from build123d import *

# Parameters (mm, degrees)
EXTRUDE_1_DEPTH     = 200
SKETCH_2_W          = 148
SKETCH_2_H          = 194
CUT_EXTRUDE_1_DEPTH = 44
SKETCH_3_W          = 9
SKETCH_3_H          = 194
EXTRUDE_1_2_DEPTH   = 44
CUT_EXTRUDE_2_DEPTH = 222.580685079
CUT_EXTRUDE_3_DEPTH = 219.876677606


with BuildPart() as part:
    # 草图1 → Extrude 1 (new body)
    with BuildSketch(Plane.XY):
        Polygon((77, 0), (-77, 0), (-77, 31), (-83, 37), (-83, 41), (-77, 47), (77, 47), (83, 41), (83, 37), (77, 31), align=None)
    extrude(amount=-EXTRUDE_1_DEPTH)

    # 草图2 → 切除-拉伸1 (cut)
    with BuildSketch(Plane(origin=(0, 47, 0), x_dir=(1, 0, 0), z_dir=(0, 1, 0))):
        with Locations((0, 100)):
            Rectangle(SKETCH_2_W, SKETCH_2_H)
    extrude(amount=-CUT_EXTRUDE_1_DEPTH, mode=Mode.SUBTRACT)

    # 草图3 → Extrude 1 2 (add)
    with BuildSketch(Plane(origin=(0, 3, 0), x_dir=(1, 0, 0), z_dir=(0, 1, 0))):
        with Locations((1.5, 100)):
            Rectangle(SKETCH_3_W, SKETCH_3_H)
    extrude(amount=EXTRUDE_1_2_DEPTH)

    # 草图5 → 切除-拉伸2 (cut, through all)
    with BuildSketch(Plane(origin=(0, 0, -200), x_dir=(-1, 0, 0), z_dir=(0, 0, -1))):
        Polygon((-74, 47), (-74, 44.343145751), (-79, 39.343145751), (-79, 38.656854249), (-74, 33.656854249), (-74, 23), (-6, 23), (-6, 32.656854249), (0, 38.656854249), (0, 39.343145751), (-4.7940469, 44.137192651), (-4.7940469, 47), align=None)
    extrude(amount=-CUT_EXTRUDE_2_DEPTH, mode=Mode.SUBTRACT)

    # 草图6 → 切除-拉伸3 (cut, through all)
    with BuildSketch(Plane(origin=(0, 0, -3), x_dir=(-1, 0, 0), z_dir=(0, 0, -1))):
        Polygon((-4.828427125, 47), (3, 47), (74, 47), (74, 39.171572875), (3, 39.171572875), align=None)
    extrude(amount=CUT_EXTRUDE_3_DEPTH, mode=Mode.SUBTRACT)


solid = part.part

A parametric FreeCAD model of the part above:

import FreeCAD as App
import Part
import Sketcher
Q = App.Units.Quantity

doc = App.newDocument("Part")
body = doc.addObject("PartDesign::Body", "Body")

# Sketch on XY plane
sketch1 = body.newObject("Sketcher::SketchObject", "Sketch")
sketch1.AttachmentSupport = (doc.getObject("XY_Plane"), [""])
sketch1.MapMode = "FlatFace"
sketch1.addGeometry(Part.LineSegment(App.Vector(-77, 0, 0), App.Vector(77, 0, 0)), False)
sketch1.addGeometry(Part.LineSegment(App.Vector(77, 0, 0), App.Vector(77, 31, 0)), False)
sketch1.addGeometry(Part.LineSegment(App.Vector(77, 31, 0), App.Vector(83, 37, 0)), False)
sketch1.addGeometry(Part.LineSegment(App.Vector(83, 37, 0), App.Vector(83, 41, 0)), False)
sketch1.addGeometry(Part.LineSegment(App.Vector(83, 41, 0), App.Vector(77, 47, 0)), False)
sketch1.addGeometry(Part.LineSegment(App.Vector(77, 47, 0), App.Vector(-77, 47, 0)), False)
sketch1.addGeometry(Part.LineSegment(App.Vector(-77, 47, 0), App.Vector(-83, 41, 0)), False)
sketch1.addGeometry(Part.LineSegment(App.Vector(-83, 41, 0), App.Vector(-83, 37, 0)), False)
sketch1.addGeometry(Part.LineSegment(App.Vector(-83, 37, 0), App.Vector(-77, 31, 0)), False)
sketch1.addGeometry(Part.LineSegment(App.Vector(-77, 31, 0), App.Vector(-77, 0, 0)), False)
sketch1.addConstraint(Sketcher.Constraint("Coincident", 0, 2, 1, 1))
sketch1.addConstraint(Sketcher.Constraint("Coincident", 1, 2, 2, 1))
sketch1.addConstraint(Sketcher.Constraint("Coincident", 2, 2, 3, 1))
sketch1.addConstraint(Sketcher.Constraint("Coincident", 3, 2, 4, 1))
sketch1.addConstraint(Sketcher.Constraint("Coincident", 4, 2, 5, 1))
sketch1.addConstraint(Sketcher.Constraint("Coincident", 5, 2, 6, 1))
sketch1.addConstraint(Sketcher.Constraint("Coincident", 6, 2, 7, 1))
sketch1.addConstraint(Sketcher.Constraint("Coincident", 7, 2, 8, 1))
sketch1.addConstraint(Sketcher.Constraint("Coincident", 8, 2, 9, 1))
sketch1.addConstraint(Sketcher.Constraint("Coincident", 9, 2, 0, 1))
sketch1.addConstraint(Sketcher.Constraint("Horizontal", 0))
sketch1.addConstraint(Sketcher.Constraint("Vertical", 1))
sketch1.addConstraint(Sketcher.Constraint("Vertical", 3))
sketch1.addConstraint(Sketcher.Constraint("Horizontal", 5))
sketch1.addConstraint(Sketcher.Constraint("Vertical", 7))
sketch1.addConstraint(Sketcher.Constraint("Vertical", 9))
sketch1.addConstraint(Sketcher.Constraint("Symmetric", 0, 2, 9, 2, -1, 1))
sketch1.addConstraint(Sketcher.Constraint("Symmetric", 3, 2, 6, 2, -2))
sketch1.addConstraint(Sketcher.Constraint("Perpendicular", 2, 4))
sketch1.addConstraint(Sketcher.Constraint("Perpendicular", 4, 6))
sketch1.addConstraint(Sketcher.Constraint("Perpendicular", 6, 8))
sketch1.addConstraint(Sketcher.Constraint("Horizontal", 2, 2, 7, 2))
sketch1.addConstraint(Sketcher.Constraint("Horizontal", 1, 2, 8, 2))
sketch1.addConstraint(Sketcher.Constraint("Vertical", 1, 2, 4, 2))
sketch1.addConstraint(Sketcher.Constraint("DistanceX", 0, 1, 0, 2, 154.0))
sketch1.addConstraint(Sketcher.Constraint("DistanceY", 1, 1, 1, 2, 31.0))
sketch1.addConstraint(Sketcher.Constraint("DistanceY", 3, 1, 3, 2, 4.0))
sketch1.addConstraint(Sketcher.Constraint("DistanceX", -1, 1, 2, 2, 83.0))
pad1 = body.newObject("PartDesign::Pad", "Pad")
pad1.Profile = sketch1
pad1.Length = 200
pad1.Reversed = True

# Sketch on XZ plane
sketch2 = body.newObject("Sketcher::SketchObject", "Sketch001")
sketch2.AttachmentSupport = (doc.getObject("XZ_Plane"), [""])
sketch2.MapMode = "FlatFace"
sketch2.AttachmentOffset = App.Placement(App.Vector(0, 0, -47), App.Rotation())
sketch2.addGeometry(Part.LineSegment(App.Vector(-74, -197, 0), App.Vector(-74, -3, 0)), False)
sketch2.addGeometry(Part.LineSegment(App.Vector(-74, -3, 0), App.Vector(74, -3, 0)), False)
sketch2.addGeometry(Part.LineSegment(App.Vector(74, -3, 0), App.Vector(74, -197, 0)), False)
sketch2.addGeometry(Part.LineSegment(App.Vector(74, -197, 0), App.Vector(-74, -197, 0)), False)
sketch2.addConstraint(Sketcher.Constraint("Coincident", 0, 2, 1, 1))
sketch2.addConstraint(Sketcher.Constraint("Coincident", 1, 2, 2, 1))
sketch2.addConstraint(Sketcher.Constraint("Coincident", 2, 2, 3, 1))
sketch2.addConstraint(Sketcher.Constraint("Coincident", 3, 2, 0, 1))
sketch2.addConstraint(Sketcher.Constraint("Vertical", 0))
sketch2.addConstraint(Sketcher.Constraint("Horizontal", 1))
sketch2.addConstraint(Sketcher.Constraint("Vertical", 2))
sketch2.addConstraint(Sketcher.Constraint("Horizontal", 3))
sketch2.addConstraint(Sketcher.Constraint("DistanceX", 1, 1, 1, 2, 148.0))
sketch2.addConstraint(Sketcher.Constraint("DistanceY", 0, 1, 0, 2, 194.0))
sketch2.addConstraint(Sketcher.Constraint("DistanceX", 0, 2, -1, 1, 74.0))
sketch2.addConstraint(Sketcher.Constraint("DistanceY", 0, 2, -1, 1, 3.0))
pocket1 = body.newObject("PartDesign::Pocket", "Pocket")
pocket1.Profile = sketch2
pocket1.Length = 44
pocket1.Reversed = True

# Sketch on XZ plane
sketch3 = body.newObject("Sketcher::SketchObject", "Sketch002")
sketch3.AttachmentSupport = (doc.getObject("XZ_Plane"), [""])
sketch3.MapMode = "FlatFace"
sketch3.AttachmentOffset = App.Placement(App.Vector(0, 0, -3), App.Rotation())
sketch3.addGeometry(Part.LineSegment(App.Vector(-3, -197, 0), App.Vector(-3, -3, 0)), False)
sketch3.addGeometry(Part.LineSegment(App.Vector(-3, -3, 0), App.Vector(6, -3, 0)), False)
sketch3.addGeometry(Part.LineSegment(App.Vector(6, -3, 0), App.Vector(6, -197, 0)), False)
sketch3.addGeometry(Part.LineSegment(App.Vector(6, -197, 0), App.Vector(-3, -197, 0)), False)
sketch3.addConstraint(Sketcher.Constraint("Coincident", 0, 2, 1, 1))
sketch3.addConstraint(Sketcher.Constraint("Coincident", 1, 2, 2, 1))
sketch3.addConstraint(Sketcher.Constraint("Coincident", 2, 2, 3, 1))
sketch3.addConstraint(Sketcher.Constraint("Coincident", 3, 2, 0, 1))
sketch3.addConstraint(Sketcher.Constraint("Vertical", 0))
sketch3.addConstraint(Sketcher.Constraint("Horizontal", 1))
sketch3.addConstraint(Sketcher.Constraint("Vertical", 2))
sketch3.addConstraint(Sketcher.Constraint("Horizontal", 3))
sketch3.addConstraint(Sketcher.Constraint("DistanceX", 1, 1, 1, 2, 9.0))
sketch3.addConstraint(Sketcher.Constraint("DistanceY", 0, 1, 0, 2, 194.0))
sketch3.addConstraint(Sketcher.Constraint("DistanceX", 0, 2, -1, 1, 3.0))
sketch3.addConstraint(Sketcher.Constraint("DistanceY", 0, 2, -1, 1, 3.0))
pad2 = body.newObject("PartDesign::Pad", "Pad001")
pad2.Profile = sketch3
pad2.Length = 44
pad2.Reversed = True

# Sketch on XY plane
sketch4 = body.newObject("Sketcher::SketchObject", "Sketch003")
sketch4.AttachmentSupport = (doc.getObject("XY_Plane"), [""])
sketch4.MapMode = "FlatFace"
sketch4.AttachmentOffset = App.Placement(App.Vector(0, 0, -200), App.Rotation())
sketch4.addGeometry(Part.LineSegment(App.Vector(74, 47, 0), App.Vector(74, 44.3, 0)), False)
sketch4.addGeometry(Part.LineSegment(App.Vector(74, 44.3, 0), App.Vector(79, 39.3, 0)), False)
sketch4.addGeometry(Part.LineSegment(App.Vector(79, 39.3, 0), App.Vector(79, 38.7, 0)), False)
sketch4.addGeometry(Part.LineSegment(App.Vector(79, 38.7, 0), App.Vector(74, 33.7, 0)), False)
sketch4.addGeometry(Part.LineSegment(App.Vector(74, 33.7, 0), App.Vector(74, 23, 0)), False)
sketch4.addGeometry(Part.LineSegment(App.Vector(74, 23, 0), App.Vector(6, 23, 0)), False)
sketch4.addGeometry(Part.LineSegment(App.Vector(6, 23, 0), App.Vector(6, 32.7, 0)), False)
sketch4.addGeometry(Part.LineSegment(App.Vector(6, 32.7, 0), App.Vector(0, 38.7, 0)), False)
sketch4.addGeometry(Part.LineSegment(App.Vector(0, 38.7, 0), App.Vector(0, 39.3, 0)), False)
sketch4.addGeometry(Part.LineSegment(App.Vector(0, 39.3, 0), App.Vector(4.8, 44.1, 0)), False)
sketch4.addGeometry(Part.LineSegment(App.Vector(4.8, 44.1, 0), App.Vector(4.8, 47, 0)), False)
sketch4.addGeometry(Part.LineSegment(App.Vector(4.8, 47, 0), App.Vector(74, 47, 0)), False)
sketch4.addConstraint(Sketcher.Constraint("Coincident", 0, 2, 1, 1))
sketch4.addConstraint(Sketcher.Constraint("Coincident", 1, 2, 2, 1))
sketch4.addConstraint(Sketcher.Constraint("Coincident", 2, 2, 3, 1))
sketch4.addConstraint(Sketcher.Constraint("Coincident", 3, 2, 4, 1))
sketch4.addConstraint(Sketcher.Constraint("Coincident", 4, 2, 5, 1))
sketch4.addConstraint(Sketcher.Constraint("Coincident", 5, 2, 6, 1))
sketch4.addConstraint(Sketcher.Constraint("Coincident", 6, 2, 7, 1))
sketch4.addConstraint(Sketcher.Constraint("Coincident", 7, 2, 8, 1))
sketch4.addConstraint(Sketcher.Constraint("Coincident", 8, 2, 9, 1))
sketch4.addConstraint(Sketcher.Constraint("Coincident", 9, 2, 10, 1))
sketch4.addConstraint(Sketcher.Constraint("Coincident", 10, 2, 11, 1))
sketch4.addConstraint(Sketcher.Constraint("Coincident", 11, 2, 0, 1))
sketch4.addConstraint(Sketcher.Constraint("Vertical", 0))
sketch4.addConstraint(Sketcher.Constraint("Vertical", 2))
sketch4.addConstraint(Sketcher.Constraint("Vertical", 4))
sketch4.addConstraint(Sketcher.Constraint("Horizontal", 5))
sketch4.addConstraint(Sketcher.Constraint("Vertical", 6))
sketch4.addConstraint(Sketcher.Constraint("Vertical", 8))
sketch4.addConstraint(Sketcher.Constraint("Vertical", 10))
sketch4.addConstraint(Sketcher.Constraint("Horizontal", 11))
sketch4.addConstraint(Sketcher.Constraint("PointOnObject", 7, 2, -2))
sketch4.addConstraint(Sketcher.Constraint("Perpendicular", 1, 3))
sketch4.addConstraint(Sketcher.Constraint("Perpendicular", 3, 7))
sketch4.addConstraint(Sketcher.Constraint("Perpendicular", 7, 9))
sketch4.addConstraint(Sketcher.Constraint("Horizontal", 2, 2, 7, 2))
sketch4.addConstraint(Sketcher.Constraint("Horizontal", 1, 2, 8, 2))
sketch4.addConstraint(Sketcher.Constraint("Vertical", 0, 2, 3, 2))
sketch4.addConstraint(Sketcher.Constraint("Equal", 1, 3))
sketch4.addConstraint(Sketcher.Constraint("DistanceX", 5, 2, 5, 1, 68.0))
sketch4.addConstraint(Sketcher.Constraint("DistanceX", -1, 1, 0, 2, 74.0))
sketch4.addConstraint(Sketcher.Constraint("DistanceX", -1, 1, 1, 2, 79.0))
sketch4.addConstraint(Sketcher.Constraint("DistanceY", -1, 1, 4, 2, 23.0))
sketch4.addConstraint(Sketcher.Constraint("DistanceY", -1, 1, 10, 2, 47.0))
sketch4.addConstraint(Sketcher.Constraint("DistanceY", 2, 2, 2, 1, 0.686292))
sketch4.addConstraint(Sketcher.Constraint("DistanceX", 11, 1, 11, 2, 69.205953))
sketch4.addConstraint(Sketcher.Constraint("DistanceY", 0, 2, 0, 1, 2.656854))
pocket2 = body.newObject("PartDesign::Pocket", "Pocket001")
pocket2.Profile = sketch4
pocket2.Type = "ThroughAll"
pocket2.Reversed = True

# Sketch on XY plane
sketch5 = body.newObject("Sketcher::SketchObject", "Sketch004")
sketch5.AttachmentSupport = (doc.getObject("XY_Plane"), [""])
sketch5.MapMode = "FlatFace"
sketch5.AttachmentOffset = App.Placement(App.Vector(0, 0, -3), App.Rotation())
sketch5.addGeometry(Part.LineSegment(App.Vector(-74, 47, 0), App.Vector(5, 47, 0)), False)
sketch5.addGeometry(Part.LineSegment(App.Vector(5, 47, 0), App.Vector(-3, 39, 0)), False)
sketch5.addGeometry(Part.LineSegment(App.Vector(-3, 39, 0), App.Vector(-74, 39, 0)), False)
sketch5.addGeometry(Part.LineSegment(App.Vector(-74, 39, 0), App.Vector(-74, 47, 0)), False)
sketch5.addConstraint(Sketcher.Constraint("Coincident", 0, 2, 1, 1))
sketch5.addConstraint(Sketcher.Constraint("Coincident", 1, 2, 2, 1))
sketch5.addConstraint(Sketcher.Constraint("Coincident", 2, 2, 3, 1))
sketch5.addConstraint(Sketcher.Constraint("Coincident", 3, 2, 0, 1))
sketch5.addConstraint(Sketcher.Constraint("Horizontal", 0))
sketch5.addConstraint(Sketcher.Constraint("Horizontal", 2))
sketch5.addConstraint(Sketcher.Constraint("Vertical", 3))
sketch5.addConstraint(Sketcher.Constraint("DistanceX", 2, 2, 2, 1, 71.0))
sketch5.addConstraint(Sketcher.Constraint("Angle", 1, Q("-135 deg")))
sketch5.addConstraint(Sketcher.Constraint("DistanceY", -1, 1, 0, 2, 47.0))
sketch5.addConstraint(Sketcher.Constraint("DistanceX", 1, 2, -1, 1, 3.0))
sketch5.addConstraint(Sketcher.Constraint("DistanceX", 0, 1, 0, 2, 78.828427))
pocket3 = body.newObject("PartDesign::Pocket", "Pocket002")
pocket3.Profile = sketch5
pocket3.Type = "ThroughAll"

doc.recompute()
